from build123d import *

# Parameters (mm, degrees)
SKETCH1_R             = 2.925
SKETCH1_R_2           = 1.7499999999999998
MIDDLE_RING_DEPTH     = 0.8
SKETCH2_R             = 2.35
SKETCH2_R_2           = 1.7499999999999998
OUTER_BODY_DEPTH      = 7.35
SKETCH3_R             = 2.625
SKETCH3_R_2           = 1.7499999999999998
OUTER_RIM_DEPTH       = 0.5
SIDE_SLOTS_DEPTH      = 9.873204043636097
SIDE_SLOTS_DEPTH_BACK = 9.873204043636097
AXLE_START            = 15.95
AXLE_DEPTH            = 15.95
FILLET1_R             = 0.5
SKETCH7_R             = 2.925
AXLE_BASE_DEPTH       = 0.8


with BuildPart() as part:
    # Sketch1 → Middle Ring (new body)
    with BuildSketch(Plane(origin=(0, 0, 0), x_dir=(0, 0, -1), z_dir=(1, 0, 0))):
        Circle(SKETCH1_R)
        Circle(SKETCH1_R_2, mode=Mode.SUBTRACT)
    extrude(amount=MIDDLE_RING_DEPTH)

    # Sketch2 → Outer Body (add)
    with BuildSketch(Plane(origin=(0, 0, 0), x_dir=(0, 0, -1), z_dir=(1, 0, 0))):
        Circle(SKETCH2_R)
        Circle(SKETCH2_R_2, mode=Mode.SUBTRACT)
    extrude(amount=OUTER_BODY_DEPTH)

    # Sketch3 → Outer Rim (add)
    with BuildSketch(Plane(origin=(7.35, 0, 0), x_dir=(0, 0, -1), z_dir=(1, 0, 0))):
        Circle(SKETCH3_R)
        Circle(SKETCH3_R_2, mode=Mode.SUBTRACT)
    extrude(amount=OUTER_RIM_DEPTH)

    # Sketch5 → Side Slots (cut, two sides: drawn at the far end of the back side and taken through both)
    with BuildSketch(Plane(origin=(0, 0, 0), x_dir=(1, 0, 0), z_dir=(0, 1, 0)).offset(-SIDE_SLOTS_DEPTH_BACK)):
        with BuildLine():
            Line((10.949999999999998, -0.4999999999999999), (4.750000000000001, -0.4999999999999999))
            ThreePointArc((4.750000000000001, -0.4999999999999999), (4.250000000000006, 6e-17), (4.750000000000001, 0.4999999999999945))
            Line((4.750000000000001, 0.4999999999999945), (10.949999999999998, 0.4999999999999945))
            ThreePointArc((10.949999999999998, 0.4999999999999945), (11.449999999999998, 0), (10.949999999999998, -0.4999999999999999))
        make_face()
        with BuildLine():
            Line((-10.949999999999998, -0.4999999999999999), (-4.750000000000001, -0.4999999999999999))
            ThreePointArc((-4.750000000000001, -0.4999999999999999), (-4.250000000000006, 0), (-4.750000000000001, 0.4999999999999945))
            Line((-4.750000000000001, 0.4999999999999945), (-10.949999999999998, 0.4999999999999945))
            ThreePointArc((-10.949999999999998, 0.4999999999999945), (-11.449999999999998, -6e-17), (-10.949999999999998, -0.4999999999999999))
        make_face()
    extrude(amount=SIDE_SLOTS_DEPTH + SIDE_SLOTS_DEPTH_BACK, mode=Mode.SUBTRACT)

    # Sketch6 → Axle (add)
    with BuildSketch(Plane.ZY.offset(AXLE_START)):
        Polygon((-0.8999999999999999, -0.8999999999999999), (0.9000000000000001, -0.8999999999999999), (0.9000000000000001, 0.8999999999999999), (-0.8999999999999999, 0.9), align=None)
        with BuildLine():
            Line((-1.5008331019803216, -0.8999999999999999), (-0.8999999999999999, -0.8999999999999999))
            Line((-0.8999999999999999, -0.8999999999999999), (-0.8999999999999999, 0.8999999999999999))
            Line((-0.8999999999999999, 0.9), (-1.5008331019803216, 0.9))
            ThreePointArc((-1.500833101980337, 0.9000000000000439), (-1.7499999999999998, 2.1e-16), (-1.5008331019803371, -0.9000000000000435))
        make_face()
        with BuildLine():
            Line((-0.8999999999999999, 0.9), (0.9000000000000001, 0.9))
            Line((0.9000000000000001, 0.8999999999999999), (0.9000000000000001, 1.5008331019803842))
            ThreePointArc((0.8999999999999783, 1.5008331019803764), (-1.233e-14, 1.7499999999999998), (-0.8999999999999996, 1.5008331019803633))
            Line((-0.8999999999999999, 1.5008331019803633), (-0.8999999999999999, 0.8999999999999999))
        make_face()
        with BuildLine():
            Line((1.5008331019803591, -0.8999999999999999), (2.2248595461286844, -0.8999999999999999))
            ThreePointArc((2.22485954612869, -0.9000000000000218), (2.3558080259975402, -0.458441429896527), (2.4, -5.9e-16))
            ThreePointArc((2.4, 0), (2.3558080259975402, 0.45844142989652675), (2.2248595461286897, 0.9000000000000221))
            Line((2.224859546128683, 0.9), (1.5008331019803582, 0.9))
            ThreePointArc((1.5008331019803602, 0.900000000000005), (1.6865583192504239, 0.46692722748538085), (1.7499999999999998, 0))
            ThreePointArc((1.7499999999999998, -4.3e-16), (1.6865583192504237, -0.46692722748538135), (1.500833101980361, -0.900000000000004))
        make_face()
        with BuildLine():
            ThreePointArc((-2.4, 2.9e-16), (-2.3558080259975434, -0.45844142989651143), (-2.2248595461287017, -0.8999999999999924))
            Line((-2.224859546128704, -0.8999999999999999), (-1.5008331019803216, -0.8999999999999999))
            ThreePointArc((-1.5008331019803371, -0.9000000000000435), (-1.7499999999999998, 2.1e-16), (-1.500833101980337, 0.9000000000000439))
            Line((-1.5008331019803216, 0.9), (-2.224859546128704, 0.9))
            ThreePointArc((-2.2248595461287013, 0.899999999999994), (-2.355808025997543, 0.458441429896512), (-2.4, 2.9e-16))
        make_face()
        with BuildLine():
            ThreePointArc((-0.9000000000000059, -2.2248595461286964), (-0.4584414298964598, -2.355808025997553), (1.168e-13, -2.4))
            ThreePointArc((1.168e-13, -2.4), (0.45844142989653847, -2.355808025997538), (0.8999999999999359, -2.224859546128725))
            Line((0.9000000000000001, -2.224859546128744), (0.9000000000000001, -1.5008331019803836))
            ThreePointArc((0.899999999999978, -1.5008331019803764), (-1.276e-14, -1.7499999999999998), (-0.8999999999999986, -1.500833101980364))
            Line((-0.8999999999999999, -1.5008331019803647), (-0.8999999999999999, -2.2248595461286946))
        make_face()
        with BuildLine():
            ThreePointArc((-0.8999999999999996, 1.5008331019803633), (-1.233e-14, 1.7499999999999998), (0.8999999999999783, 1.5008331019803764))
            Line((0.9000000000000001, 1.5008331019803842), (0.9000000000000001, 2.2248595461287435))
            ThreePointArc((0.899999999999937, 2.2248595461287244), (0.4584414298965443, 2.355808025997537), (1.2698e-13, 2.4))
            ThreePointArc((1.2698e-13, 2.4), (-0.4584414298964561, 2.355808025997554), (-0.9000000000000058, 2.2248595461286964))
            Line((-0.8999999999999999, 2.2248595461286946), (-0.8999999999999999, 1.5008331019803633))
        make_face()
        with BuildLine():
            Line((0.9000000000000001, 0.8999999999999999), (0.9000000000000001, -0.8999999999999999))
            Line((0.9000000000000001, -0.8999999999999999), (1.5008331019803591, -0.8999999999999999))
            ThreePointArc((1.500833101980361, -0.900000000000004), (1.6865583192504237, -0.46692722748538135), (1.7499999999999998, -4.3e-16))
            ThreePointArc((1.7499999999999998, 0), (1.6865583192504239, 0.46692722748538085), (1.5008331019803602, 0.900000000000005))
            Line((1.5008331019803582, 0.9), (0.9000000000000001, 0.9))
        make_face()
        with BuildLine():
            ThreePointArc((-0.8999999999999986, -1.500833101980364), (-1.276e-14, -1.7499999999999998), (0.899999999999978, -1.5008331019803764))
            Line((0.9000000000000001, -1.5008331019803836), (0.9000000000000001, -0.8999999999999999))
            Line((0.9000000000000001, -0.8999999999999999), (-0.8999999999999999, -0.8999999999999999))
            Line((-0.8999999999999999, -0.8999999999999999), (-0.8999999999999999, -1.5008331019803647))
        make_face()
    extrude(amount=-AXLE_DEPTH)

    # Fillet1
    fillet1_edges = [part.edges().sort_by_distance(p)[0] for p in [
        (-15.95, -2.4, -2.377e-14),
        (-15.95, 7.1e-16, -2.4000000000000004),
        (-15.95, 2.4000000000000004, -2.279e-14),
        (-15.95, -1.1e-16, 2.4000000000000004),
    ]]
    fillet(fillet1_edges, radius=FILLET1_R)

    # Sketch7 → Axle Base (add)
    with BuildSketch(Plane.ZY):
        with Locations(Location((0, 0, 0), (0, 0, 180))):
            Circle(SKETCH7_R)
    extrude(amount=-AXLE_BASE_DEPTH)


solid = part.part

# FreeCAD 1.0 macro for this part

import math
import FreeCAD as App
import Part
import Sketcher

V = App.Vector
Q = App.Units.Quantity


def edges_at(feature, points):
    """Names of the edges that pass closest to the given points."""
    edges = feature.Shape.Edges
    near = lambda p: min(range(len(edges)), key=lambda i: edges[i].distToShape(Part.Vertex(*p))[0])
    return sorted({f"Edge{near(p) + 1}" for p in points})

doc = App.newDocument("Part")
params = doc.addObject("Spreadsheet::Sheet", "Params")
for row, (alias, value) in enumerate([
    ("sketch1_diameter", "3.5 mm"),
    ("sketch1_diameter2", "5.85 mm"),
    ("pad1_length", "0.8 mm"),
    ("sketch2_diameter", "4.7 mm"),
    ("sketch2_diameter2", "3.5 mm"),
    ("pad2_length", "7.35 mm"),
    ("sketch3_diameter", "3.5 mm"),
    ("sketch3_diameter2", "5.25 mm"),
    ("pad3_length", "0.5 mm"),
    ("sketch4_radius", "0.5 mm"),
    ("sketch4_width", "6.2 mm"),
    ("sketch5_radius", "2.4 mm"),
    ("pad4_length", "15.95 mm"),
    ("fillet_radius", "0.5 mm"),
    ("sketch6_diameter", "5.85 mm"),
    ("pad5_length", "0.8 mm"),
], start=1):
    params.set(f"A{row}", alias)
    params.set(f"B{row}", "=" + value)
    params.setAlias(f"B{row}", alias)

body = doc.addObject("PartDesign::Body", "Body")

sketch1 = body.newObject("Sketcher::SketchObject", "Sketch")
sketch1.AttachmentSupport = (doc.getObject("YZ_Plane"), [""])
sketch1.MapMode = "FlatFace"
sketch1.addGeometry(Part.Circle(V(0, 0, 0), V(0, 0, 1), 2.9), False)
sketch1.addGeometry(Part.Circle(V(0, 0, 0), V(0, 0, 1), 1.8), False)
sketch1.addConstraint(Sketcher.Constraint("Coincident", 0, 3, -1, 1))
sketch1.addConstraint(Sketcher.Constraint("Coincident", 1, 3, -1, 1))
sketch1.addConstraint(Sketcher.Constraint("Diameter", 1, Q("3.5 mm")))
sketch1.addConstraint(Sketcher.Constraint("Diameter", 0, Q("5.85 mm")))
sketch1.setExpression("Constraints[2]", "Params.sketch1_diameter")
sketch1.setExpression("Constraints[3]", "Params.sketch1_diameter2")
pad1 = body.newObject("PartDesign::Pad", "Pad")
pad1.Profile = sketch1
pad1.setExpression("Length", "Params.pad1_length")

sketch2 = body.newObject("Sketcher::SketchObject", "Sketch001")
sketch2.AttachmentSupport = (doc.getObject("YZ_Plane"), [""])
sketch2.MapMode = "FlatFace"
sketch2.addGeometry(Part.Circle(V(0, 0, 0), V(0, 0, 1), 2.4), False)
sketch2.addGeometry(Part.Circle(V(0, 0, 0), V(0, 0, 1), 1.8), False)
sketch2.addConstraint(Sketcher.Constraint("Coincident", 0, 3, -1, 1))
sketch2.addConstraint(Sketcher.Constraint("Coincident", 1, 3, -1, 1))
sketch2.addConstraint(Sketcher.Constraint("Diameter", 0, Q("4.7 mm")))
sketch2.addConstraint(Sketcher.Constraint("Diameter", 1, Q("3.5 mm")))
sketch2.setExpression("Constraints[2]", "Params.sketch2_diameter")
sketch2.setExpression("Constraints[3]", "Params.sketch2_diameter2")
pad2 = body.newObject("PartDesign::Pad", "Pad001")
pad2.Profile = sketch2
pad2.setExpression("Length", "Params.pad2_length")

sketch3 = body.newObject("Sketcher::SketchObject", "Sketch002")
sketch3.AttachmentSupport = (doc.getObject("YZ_Plane"), [""])
sketch3.MapMode = "FlatFace"
sketch3.AttachmentOffset = App.Placement(V(0, 0, 7.35), App.Rotation())
sketch3.addGeometry(Part.Circle(V(0, 0, 0), V(0, 0, 1), 2.6), False)
sketch3.addGeometry(Part.Circle(V(0, 0, 0), V(0, 0, 1), 1.8), False)
sketch3.addConstraint(Sketcher.Constraint("Coincident", 0, 3, -1, 1))
sketch3.addConstraint(Sketcher.Constraint("Coincident", 1, 3, -1, 1))
sketch3.addConstraint(Sketcher.Constraint("Diameter", 1, Q("3.5 mm")))
sketch3.addConstraint(Sketcher.Constraint("Diameter", 0, Q("5.25 mm")))
sketch3.setExpression("Constraints[2]", "Params.sketch3_diameter")
sketch3.setExpression("Constraints[3]", "Params.sketch3_diameter2")
pad3 = body.newObject("PartDesign::Pad", "Pad002")
pad3.Profile = sketch3
pad3.setExpression("Length", "Params.pad3_length")

sketch4 = body.newObject("Sketcher::SketchObject", "Sketch003")
sketch4.AttachmentSupport = (doc.getObject("XZ_Plane"), [""])
sketch4.MapMode = "FlatFace"
sketch4.addGeometry(Part.LineSegment(V(4.8, 0.5, 0), V(10.9, 0.5, 0)), False)
sketch4.addGeometry(Part.ArcOfCircle(Part.Circle(V(10.9, 0, 0), V(0, 0, 1), 0.5), math.radians(-90), math.radians(90)), False)
sketch4.addGeometry(Part.LineSegment(V(10.9, -0.5, 0), V(4.8, -0.5, 0)), False)
sketch4.addGeometry(Part.ArcOfCircle(Part.Circle(V(4.8, 0, 0), V(0, 0, 1), 0.5), math.radians(90), math.radians(270)), False)
sketch4.addGeometry(Part.LineSegment(V(-10.9, 0.5, 0), V(-4.8, 0.5, 0)), False)
sketch4.addGeometry(Part.ArcOfCircle(Part.Circle(V(-4.8, 0, 0), V(0, 0, 1), 0.5), math.radians(-90), math.radians(90)), False)
sketch4.addGeometry(Part.LineSegment(V(-4.8, -0.5, 0), V(-10.9, -0.5, 0)), False)
sketch4.addGeometry(Part.ArcOfCircle(Part.Circle(V(-10.9, 0, 0), V(0, 0, 1), 0.5), math.radians(90), math.radians(270)), False)
sketch4.addConstraint(Sketcher.Constraint("Tangent", 0, 2, 1, 2))
sketch4.addConstraint(Sketcher.Constraint("Tangent", 1, 1, 2, 1))
sketch4.addConstraint(Sketcher.Constraint("Tangent", 2, 2, 3, 2))
sketch4.addConstraint(Sketcher.Constraint("Tangent", 3, 1, 0, 1))
sketch4.addConstraint(Sketcher.Constraint("Tangent", 4, 2, 5, 2))
sketch4.addConstraint(Sketcher.Constraint("Tangent", 5, 1, 6, 1))
sketch4.addConstraint(Sketcher.Constraint("Tangent", 6, 2, 7, 2))
sketch4.addConstraint(Sketcher.Constraint("Tangent", 7, 1, 4, 1))
sketch4.addConstraint(Sketcher.Constraint("Horizontal", 0))
sketch4.addConstraint(Sketcher.Constraint("Horizontal", 2))
sketch4.addConstraint(Sketcher.Constraint("Horizontal", 4))
sketch4.addConstraint(Sketcher.Constraint("Horizontal", 6))
sketch4.addConstraint(Sketcher.Constraint("Equal", 3, 5))
sketch4.addConstraint(Sketcher.Constraint("Symmetric", 3, 3, 5, 3, -1, 1))
sketch4.addConstraint(Sketcher.Constraint("Symmetric", 1, 3, 7, 3, -2))
sketch4.addConstraint(Sketcher.Constraint("Radius", 1, Q("0.5 mm")))
sketch4.addConstraint(Sketcher.Constraint("DistanceX", 0, 1, 0, 2, Q("6.2 mm")))
sketch4.addConstraint(Sketcher.Constraint("DistanceX", 5, 3, 3, 3, Q("9.5 mm")))
sketch4.setExpression("Constraints[15]", "Params.sketch4_radius")
sketch4.setExpression("Constraints[16]", "Params.sketch4_width")
pocket1 = body.newObject("PartDesign::Pocket", "Pocket")
pocket1.Profile = sketch4
pocket1.Type = "ThroughAll"
pocket1.Midplane = True

sketch5 = body.newObject("Sketcher::SketchObject", "Sketch004")
sketch5.AttachmentSupport = (doc.getObject("YZ_Plane"), [""])
sketch5.MapMode = "FlatFace"
sketch5.AttachmentOffset = App.Placement(V(0, 0, -15.95), App.Rotation())
sketch5.addGeometry(Part.ArcOfCircle(Part.Circle(V(0, 0, 0), V(0, 0, 1), 2.4), math.radians(68), math.radians(112)), False)
sketch5.addGeometry(Part.LineSegment(V(0.9, 2.2, 0), V(0.9, 0.9, 0)), False)
sketch5.addGeometry(Part.LineSegment(V(0.9, 0.9, 0), V(2.2, 0.9, 0)), False)
sketch5.addGeometry(Part.ArcOfCircle(Part.Circle(V(0, 0, 0), V(0, 0, 1), 2.4), math.radians(-22), math.radians(22)), False)
sketch5.addGeometry(Part.LineSegment(V(2.2, -0.9, 0), V(0.9, -0.9, 0)), False)
sketch5.addGeometry(Part.LineSegment(V(0.9, -0.9, 0), V(0.9, -2.2, 0)), False)
sketch5.addGeometry(Part.ArcOfCircle(Part.Circle(V(0, 0, 0), V(0, 0, 1), 2.4), math.radians(-112), math.radians(-68)), False)
sketch5.addGeometry(Part.LineSegment(V(-0.9, -2.2, 0), V(-0.9, -0.9, 0)), False)
sketch5.addGeometry(Part.LineSegment(V(-0.9, -0.9, 0), V(-2.2, -0.9, 0)), False)
sketch5.addGeometry(Part.ArcOfCircle(Part.Circle(V(0, 0, 0), V(0, 0, 1), 2.4), math.radians(158), math.radians(202)), False)
sketch5.addGeometry(Part.LineSegment(V(-2.2, 0.9, 0), V(-0.9, 0.9, 0)), False)
sketch5.addGeometry(Part.LineSegment(V(-0.9, 0.9, 0), V(-0.9, 2.2, 0)), False)
sketch5.addConstraint(Sketcher.Constraint("Coincident", 0, 1, 1, 1))
sketch5.addConstraint(Sketcher.Constraint("Coincident", 1, 2, 2, 1))
sketch5.addConstraint(Sketcher.Constraint("Coincident", 2, 2, 3, 2))
sketch5.addConstraint(Sketcher.Constraint("Coincident", 3, 1, 4, 1))
sketch5.addConstraint(Sketcher.Constraint("Coincident", 4, 2, 5, 1))
sketch5.addConstraint(Sketcher.Constraint("Coincident", 5, 2, 6, 2))
sketch5.addConstraint(Sketcher.Constraint("Coincident", 6, 1, 7, 1))
sketch5.addConstraint(Sketcher.Constraint("Coincident", 7, 2, 8, 1))
sketch5.addConstraint(Sketcher.Constraint("Coincident", 8, 2, 9, 2))
sketch5.addConstraint(Sketcher.Constraint("Coincident", 9, 1, 10, 1))
sketch5.addConstraint(Sketcher.Constraint("Coincident", 10, 2, 11, 1))
sketch5.addConstraint(Sketcher.Constraint("Coincident", 11, 2, 0, 2))
sketch5.addConstraint(Sketcher.Constraint("Vertical", 1))
sketch5.addConstraint(Sketcher.Constraint("Horizontal", 2))
sketch5.addConstraint(Sketcher.Constraint("Horizontal", 4))
sketch5.addConstraint(Sketcher.Constraint("Vertical", 5))
sketch5.addConstraint(Sketcher.Constraint("Vertical", 7))
sketch5.addConstraint(Sketcher.Constraint("Horizontal", 8))
sketch5.addConstraint(Sketcher.Constraint("Horizontal", 10))
sketch5.addConstraint(Sketcher.Constraint("Vertical", 11))
sketch5.addConstraint(Sketcher.Constraint("Coincident", 0, 3, -1, 1))
sketch5.addConstraint(Sketcher.Constraint("Coincident", 3, 3, -1, 1))
sketch5.addConstraint(Sketcher.Constraint("Coincident", 6, 3, -1, 1))
sketch5.addConstraint(Sketcher.Constraint("Coincident", 9, 3, -1, 1))
sketch5.addConstraint(Sketcher.Constraint("Equal", 0, 3))
sketch5.addConstraint(Sketcher.Constraint("Equal", 3, 6))
sketch5.addConstraint(Sketcher.Constraint("Equal", 6, 9))
sketch5.addConstraint(Sketcher.Constraint("Symmetric", 1, 2, 7, 2, -1, 1))
sketch5.addConstraint(Sketcher.Constraint("Symmetric", 4, 2, 10, 2, -1, 1))
sketch5.addConstraint(Sketcher.Constraint("Symmetric", 4, 2, 7, 2, -2))
sketch5.addConstraint(Sketcher.Constraint("Equal", 10, 1))
sketch5.addConstraint(Sketcher.Constraint("Radius", 0, Q("2.4 mm")))
sketch5.addConstraint(Sketcher.Constraint("DistanceX", -1, 1, 0, 1, Q("0.9 mm")))
sketch5.setExpression("Constraints[31]", "Params.sketch5_radius")
pad4 = body.newObject("PartDesign::Pad", "Pad003")
pad4.Profile = sketch5
pad4.setExpression("Length", "Params.pad4_length")
doc.recompute()

fillet = body.newObject("PartDesign::Fillet", "Fillet")
fillet.Base = (pad4, edges_at(pad4, [
    (-15.95, -2.4, 0),
    (-15.95, 0, -2.4),
    (-15.95, 2.4, 0),
    (-15.95, 0, 2.4),
]))
fillet.setExpression("Radius", "Params.fillet_radius")

sketch6 = body.newObject("Sketcher::SketchObject", "Sketch005")
sketch6.AttachmentSupport = (doc.getObject("YZ_Plane"), [""])
sketch6.MapMode = "FlatFace"
sketch6.addGeometry(Part.Circle(V(0, 0, 0), V(0, 0, 1), 2.9), False)
sketch6.addConstraint(Sketcher.Constraint("Coincident", 0, 3, -1, 1))
sketch6.addConstraint(Sketcher.Constraint("Diameter", 0, Q("5.85 mm")))
sketch6.setExpression("Constraints[1]", "Params.sketch6_diameter")
pad5 = body.newObject("PartDesign::Pad", "Pad004")
pad5.Profile = sketch6
pad5.setExpression("Length", "Params.pad5_length")

doc.recompute()
